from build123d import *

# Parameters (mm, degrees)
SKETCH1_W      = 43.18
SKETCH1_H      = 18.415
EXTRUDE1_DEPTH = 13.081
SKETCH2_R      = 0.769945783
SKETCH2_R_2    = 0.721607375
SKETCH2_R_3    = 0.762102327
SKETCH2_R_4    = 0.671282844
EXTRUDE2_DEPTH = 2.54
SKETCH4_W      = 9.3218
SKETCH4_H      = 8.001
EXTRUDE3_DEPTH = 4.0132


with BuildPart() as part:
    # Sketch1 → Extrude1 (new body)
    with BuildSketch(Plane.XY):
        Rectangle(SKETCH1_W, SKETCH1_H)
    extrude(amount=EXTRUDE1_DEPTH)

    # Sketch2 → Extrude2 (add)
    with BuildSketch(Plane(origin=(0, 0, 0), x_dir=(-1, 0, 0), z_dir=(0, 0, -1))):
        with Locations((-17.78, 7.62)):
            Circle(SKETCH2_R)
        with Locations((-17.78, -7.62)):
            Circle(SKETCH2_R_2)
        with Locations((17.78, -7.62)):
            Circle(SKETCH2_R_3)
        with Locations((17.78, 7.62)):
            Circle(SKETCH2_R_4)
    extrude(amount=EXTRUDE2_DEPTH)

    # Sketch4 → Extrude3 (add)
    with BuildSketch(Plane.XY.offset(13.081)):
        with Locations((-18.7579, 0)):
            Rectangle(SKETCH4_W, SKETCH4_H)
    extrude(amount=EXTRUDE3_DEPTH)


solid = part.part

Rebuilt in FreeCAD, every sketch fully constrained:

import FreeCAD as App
import Part
import Sketcher
Q = App.Units.Quantity

doc = App.newDocument("Part")
body = doc.addObject("PartDesign::Body", "Body")

sketch1 = body.newObject("Sketcher::SketchObject", "Sketch")
sketch1.AttachmentSupport = (doc.getObject("XY_Plane"), [""])
sketch1.MapMode = "FlatFace"
sketch1.addGeometry([
    Part.LineSegment(App.Vector(-21.59, 9.2075, 0), App.Vector(-21.59, -9.2075, 0)),
    Part.LineSegment(App.Vector(-21.59, -9.2075, 0), App.Vector(21.59, -9.2075, 0)),
    Part.LineSegment(App.Vector(21.59, -9.2075, 0), App.Vector(21.59, 9.2075, 0)),
    Part.LineSegment(App.Vector(21.59, 9.2075, 0), App.Vector(-21.59, 9.2075, 0)),
], False)
sketch1.addConstraint([
    Sketcher.Constraint("Coincident", 0, 2, 1, 1),
    Sketcher.Constraint("Coincident", 1, 2, 2, 1),
    Sketcher.Constraint("Coincident", 2, 2, 3, 1),
    Sketcher.Constraint("Coincident", 3, 2, 0, 1),
    Sketcher.Constraint("Vertical", 0),
    Sketcher.Constraint("Horizontal", 1),
    Sketcher.Constraint("Vertical", 2),
    Sketcher.Constraint("Horizontal", 3),
    Sketcher.Constraint("Symmetric", 0, 2, 2, 2, -1, 1),
    Sketcher.Constraint("DistanceX", 1, 1, 1, 2, Q("1.7 in")),
    Sketcher.Constraint("DistanceY", 0, 2, 0, 1, Q("0.725 in")),
])
pad1 = body.newObject("PartDesign::Pad", "Pad")
pad1.Profile = sketch1
pad1.Length = Q("0.515 in")

sketch2 = body.newObject("Sketcher::SketchObject", "Sketch001")
sketch2.AttachmentSupport = (doc.getObject("XY_Plane"), [""])
sketch2.MapMode = "FlatFace"
sketch2.addGeometry([
    Part.Circle(App.Vector(17.78, 7.62, 0), App.Vector(0, 0, 1), 0.769946),
    Part.Circle(App.Vector(17.78, -7.62, 0), App.Vector(0, 0, 1), 0.721607),
    Part.Circle(App.Vector(-17.78, -7.62, 0), App.Vector(0, 0, 1), 0.762102),
    Part.Circle(App.Vector(-17.78, 7.62, 0), App.Vector(0, 0, 1), 0.671283),
], False)
sketch2.addConstraint([
    Sketcher.Constraint("Symmetric", 0, 3, 2, 3, -1, 1),
    Sketcher.Constraint("Symmetric", 1, 3, 3, 3, -1, 1),
    Sketcher.Constraint("Symmetric", 1, 3, 2, 3, -2),
    Sketcher.Constraint("DistanceX", -1, 1, 0, 3, Q("0.7 in")),
    Sketcher.Constraint("DistanceY", -1, 1, 0, 3, Q("0.3 in")),
    Sketcher.Constraint("Diameter", 0, Q("1.539892 mm")),
    Sketcher.Constraint("Diameter", 1, Q("1.443215 mm")),
    Sketcher.Constraint("Diameter", 2, Q("1.524205 mm")),
    Sketcher.Constraint("Diameter", 3, Q("1.342566 mm")),
])
pad2 = body.newObject("PartDesign::Pad", "Pad001")
pad2.Profile = sketch2
pad2.Length = Q("0.1 in")
pad2.Reversed = True

sketch3 = body.newObject("Sketcher::SketchObject", "Sketch002")
sketch3.AttachmentSupport = (doc.getObject("XY_Plane"), [""])
sketch3.MapMode = "FlatFace"
sketch3.AttachmentOffset = App.Placement(App.Vector(0, 0, 0.515 * 25.4), App.Rotation())
sketch3.addGeometry([
    Part.LineSegment(App.Vector(-23.4188, 4.0005, 0), App.Vector(-23.4188, -4.0005, 0)),
    Part.LineSegment(App.Vector(-23.4188, -4.0005, 0), App.Vector(-14.097, -4.0005, 0)),
    Part.LineSegment(App.Vector(-14.097, -4.0005, 0), App.Vector(-14.097, 4.0005, 0)),
    Part.LineSegment(App.Vector(-14.097, 4.0005, 0), App.Vector(-23.4188, 4.0005, 0)),
], False)
sketch3.addConstraint([
    Sketcher.Constraint("Coincident", 0, 2, 1, 1),
    Sketcher.Constraint("Coincident", 1, 2, 2, 1),
    Sketcher.Constraint("Coincident", 2, 2, 3, 1),
    Sketcher.Constraint("Coincident", 3, 2, 0, 1),
    Sketcher.Constraint("Vertical", 0),
    Sketcher.Constraint("Horizontal", 1),
    Sketcher.Constraint("Vertical", 2),
    Sketcher.Constraint("Horizontal", 3),
    Sketcher.Constraint("DistanceX", 1, 1, 1, 2, Q("0.367 in")),
    Sketcher.Constraint("DistanceY", 0, 2, 0, 1, Q("0.315 in")),
    Sketcher.Constraint("DistanceX", 0, 2, -1, 1, Q("0.922 in")),
    Sketcher.Constraint("DistanceY", 0, 2, -1, 1, Q("0.1575 in")),
])
pad3 = body.newObject("PartDesign::Pad", "Pad002")
pad3.Profile = sketch3
pad3.Length = Q("0.158 in")

doc.recompute()
